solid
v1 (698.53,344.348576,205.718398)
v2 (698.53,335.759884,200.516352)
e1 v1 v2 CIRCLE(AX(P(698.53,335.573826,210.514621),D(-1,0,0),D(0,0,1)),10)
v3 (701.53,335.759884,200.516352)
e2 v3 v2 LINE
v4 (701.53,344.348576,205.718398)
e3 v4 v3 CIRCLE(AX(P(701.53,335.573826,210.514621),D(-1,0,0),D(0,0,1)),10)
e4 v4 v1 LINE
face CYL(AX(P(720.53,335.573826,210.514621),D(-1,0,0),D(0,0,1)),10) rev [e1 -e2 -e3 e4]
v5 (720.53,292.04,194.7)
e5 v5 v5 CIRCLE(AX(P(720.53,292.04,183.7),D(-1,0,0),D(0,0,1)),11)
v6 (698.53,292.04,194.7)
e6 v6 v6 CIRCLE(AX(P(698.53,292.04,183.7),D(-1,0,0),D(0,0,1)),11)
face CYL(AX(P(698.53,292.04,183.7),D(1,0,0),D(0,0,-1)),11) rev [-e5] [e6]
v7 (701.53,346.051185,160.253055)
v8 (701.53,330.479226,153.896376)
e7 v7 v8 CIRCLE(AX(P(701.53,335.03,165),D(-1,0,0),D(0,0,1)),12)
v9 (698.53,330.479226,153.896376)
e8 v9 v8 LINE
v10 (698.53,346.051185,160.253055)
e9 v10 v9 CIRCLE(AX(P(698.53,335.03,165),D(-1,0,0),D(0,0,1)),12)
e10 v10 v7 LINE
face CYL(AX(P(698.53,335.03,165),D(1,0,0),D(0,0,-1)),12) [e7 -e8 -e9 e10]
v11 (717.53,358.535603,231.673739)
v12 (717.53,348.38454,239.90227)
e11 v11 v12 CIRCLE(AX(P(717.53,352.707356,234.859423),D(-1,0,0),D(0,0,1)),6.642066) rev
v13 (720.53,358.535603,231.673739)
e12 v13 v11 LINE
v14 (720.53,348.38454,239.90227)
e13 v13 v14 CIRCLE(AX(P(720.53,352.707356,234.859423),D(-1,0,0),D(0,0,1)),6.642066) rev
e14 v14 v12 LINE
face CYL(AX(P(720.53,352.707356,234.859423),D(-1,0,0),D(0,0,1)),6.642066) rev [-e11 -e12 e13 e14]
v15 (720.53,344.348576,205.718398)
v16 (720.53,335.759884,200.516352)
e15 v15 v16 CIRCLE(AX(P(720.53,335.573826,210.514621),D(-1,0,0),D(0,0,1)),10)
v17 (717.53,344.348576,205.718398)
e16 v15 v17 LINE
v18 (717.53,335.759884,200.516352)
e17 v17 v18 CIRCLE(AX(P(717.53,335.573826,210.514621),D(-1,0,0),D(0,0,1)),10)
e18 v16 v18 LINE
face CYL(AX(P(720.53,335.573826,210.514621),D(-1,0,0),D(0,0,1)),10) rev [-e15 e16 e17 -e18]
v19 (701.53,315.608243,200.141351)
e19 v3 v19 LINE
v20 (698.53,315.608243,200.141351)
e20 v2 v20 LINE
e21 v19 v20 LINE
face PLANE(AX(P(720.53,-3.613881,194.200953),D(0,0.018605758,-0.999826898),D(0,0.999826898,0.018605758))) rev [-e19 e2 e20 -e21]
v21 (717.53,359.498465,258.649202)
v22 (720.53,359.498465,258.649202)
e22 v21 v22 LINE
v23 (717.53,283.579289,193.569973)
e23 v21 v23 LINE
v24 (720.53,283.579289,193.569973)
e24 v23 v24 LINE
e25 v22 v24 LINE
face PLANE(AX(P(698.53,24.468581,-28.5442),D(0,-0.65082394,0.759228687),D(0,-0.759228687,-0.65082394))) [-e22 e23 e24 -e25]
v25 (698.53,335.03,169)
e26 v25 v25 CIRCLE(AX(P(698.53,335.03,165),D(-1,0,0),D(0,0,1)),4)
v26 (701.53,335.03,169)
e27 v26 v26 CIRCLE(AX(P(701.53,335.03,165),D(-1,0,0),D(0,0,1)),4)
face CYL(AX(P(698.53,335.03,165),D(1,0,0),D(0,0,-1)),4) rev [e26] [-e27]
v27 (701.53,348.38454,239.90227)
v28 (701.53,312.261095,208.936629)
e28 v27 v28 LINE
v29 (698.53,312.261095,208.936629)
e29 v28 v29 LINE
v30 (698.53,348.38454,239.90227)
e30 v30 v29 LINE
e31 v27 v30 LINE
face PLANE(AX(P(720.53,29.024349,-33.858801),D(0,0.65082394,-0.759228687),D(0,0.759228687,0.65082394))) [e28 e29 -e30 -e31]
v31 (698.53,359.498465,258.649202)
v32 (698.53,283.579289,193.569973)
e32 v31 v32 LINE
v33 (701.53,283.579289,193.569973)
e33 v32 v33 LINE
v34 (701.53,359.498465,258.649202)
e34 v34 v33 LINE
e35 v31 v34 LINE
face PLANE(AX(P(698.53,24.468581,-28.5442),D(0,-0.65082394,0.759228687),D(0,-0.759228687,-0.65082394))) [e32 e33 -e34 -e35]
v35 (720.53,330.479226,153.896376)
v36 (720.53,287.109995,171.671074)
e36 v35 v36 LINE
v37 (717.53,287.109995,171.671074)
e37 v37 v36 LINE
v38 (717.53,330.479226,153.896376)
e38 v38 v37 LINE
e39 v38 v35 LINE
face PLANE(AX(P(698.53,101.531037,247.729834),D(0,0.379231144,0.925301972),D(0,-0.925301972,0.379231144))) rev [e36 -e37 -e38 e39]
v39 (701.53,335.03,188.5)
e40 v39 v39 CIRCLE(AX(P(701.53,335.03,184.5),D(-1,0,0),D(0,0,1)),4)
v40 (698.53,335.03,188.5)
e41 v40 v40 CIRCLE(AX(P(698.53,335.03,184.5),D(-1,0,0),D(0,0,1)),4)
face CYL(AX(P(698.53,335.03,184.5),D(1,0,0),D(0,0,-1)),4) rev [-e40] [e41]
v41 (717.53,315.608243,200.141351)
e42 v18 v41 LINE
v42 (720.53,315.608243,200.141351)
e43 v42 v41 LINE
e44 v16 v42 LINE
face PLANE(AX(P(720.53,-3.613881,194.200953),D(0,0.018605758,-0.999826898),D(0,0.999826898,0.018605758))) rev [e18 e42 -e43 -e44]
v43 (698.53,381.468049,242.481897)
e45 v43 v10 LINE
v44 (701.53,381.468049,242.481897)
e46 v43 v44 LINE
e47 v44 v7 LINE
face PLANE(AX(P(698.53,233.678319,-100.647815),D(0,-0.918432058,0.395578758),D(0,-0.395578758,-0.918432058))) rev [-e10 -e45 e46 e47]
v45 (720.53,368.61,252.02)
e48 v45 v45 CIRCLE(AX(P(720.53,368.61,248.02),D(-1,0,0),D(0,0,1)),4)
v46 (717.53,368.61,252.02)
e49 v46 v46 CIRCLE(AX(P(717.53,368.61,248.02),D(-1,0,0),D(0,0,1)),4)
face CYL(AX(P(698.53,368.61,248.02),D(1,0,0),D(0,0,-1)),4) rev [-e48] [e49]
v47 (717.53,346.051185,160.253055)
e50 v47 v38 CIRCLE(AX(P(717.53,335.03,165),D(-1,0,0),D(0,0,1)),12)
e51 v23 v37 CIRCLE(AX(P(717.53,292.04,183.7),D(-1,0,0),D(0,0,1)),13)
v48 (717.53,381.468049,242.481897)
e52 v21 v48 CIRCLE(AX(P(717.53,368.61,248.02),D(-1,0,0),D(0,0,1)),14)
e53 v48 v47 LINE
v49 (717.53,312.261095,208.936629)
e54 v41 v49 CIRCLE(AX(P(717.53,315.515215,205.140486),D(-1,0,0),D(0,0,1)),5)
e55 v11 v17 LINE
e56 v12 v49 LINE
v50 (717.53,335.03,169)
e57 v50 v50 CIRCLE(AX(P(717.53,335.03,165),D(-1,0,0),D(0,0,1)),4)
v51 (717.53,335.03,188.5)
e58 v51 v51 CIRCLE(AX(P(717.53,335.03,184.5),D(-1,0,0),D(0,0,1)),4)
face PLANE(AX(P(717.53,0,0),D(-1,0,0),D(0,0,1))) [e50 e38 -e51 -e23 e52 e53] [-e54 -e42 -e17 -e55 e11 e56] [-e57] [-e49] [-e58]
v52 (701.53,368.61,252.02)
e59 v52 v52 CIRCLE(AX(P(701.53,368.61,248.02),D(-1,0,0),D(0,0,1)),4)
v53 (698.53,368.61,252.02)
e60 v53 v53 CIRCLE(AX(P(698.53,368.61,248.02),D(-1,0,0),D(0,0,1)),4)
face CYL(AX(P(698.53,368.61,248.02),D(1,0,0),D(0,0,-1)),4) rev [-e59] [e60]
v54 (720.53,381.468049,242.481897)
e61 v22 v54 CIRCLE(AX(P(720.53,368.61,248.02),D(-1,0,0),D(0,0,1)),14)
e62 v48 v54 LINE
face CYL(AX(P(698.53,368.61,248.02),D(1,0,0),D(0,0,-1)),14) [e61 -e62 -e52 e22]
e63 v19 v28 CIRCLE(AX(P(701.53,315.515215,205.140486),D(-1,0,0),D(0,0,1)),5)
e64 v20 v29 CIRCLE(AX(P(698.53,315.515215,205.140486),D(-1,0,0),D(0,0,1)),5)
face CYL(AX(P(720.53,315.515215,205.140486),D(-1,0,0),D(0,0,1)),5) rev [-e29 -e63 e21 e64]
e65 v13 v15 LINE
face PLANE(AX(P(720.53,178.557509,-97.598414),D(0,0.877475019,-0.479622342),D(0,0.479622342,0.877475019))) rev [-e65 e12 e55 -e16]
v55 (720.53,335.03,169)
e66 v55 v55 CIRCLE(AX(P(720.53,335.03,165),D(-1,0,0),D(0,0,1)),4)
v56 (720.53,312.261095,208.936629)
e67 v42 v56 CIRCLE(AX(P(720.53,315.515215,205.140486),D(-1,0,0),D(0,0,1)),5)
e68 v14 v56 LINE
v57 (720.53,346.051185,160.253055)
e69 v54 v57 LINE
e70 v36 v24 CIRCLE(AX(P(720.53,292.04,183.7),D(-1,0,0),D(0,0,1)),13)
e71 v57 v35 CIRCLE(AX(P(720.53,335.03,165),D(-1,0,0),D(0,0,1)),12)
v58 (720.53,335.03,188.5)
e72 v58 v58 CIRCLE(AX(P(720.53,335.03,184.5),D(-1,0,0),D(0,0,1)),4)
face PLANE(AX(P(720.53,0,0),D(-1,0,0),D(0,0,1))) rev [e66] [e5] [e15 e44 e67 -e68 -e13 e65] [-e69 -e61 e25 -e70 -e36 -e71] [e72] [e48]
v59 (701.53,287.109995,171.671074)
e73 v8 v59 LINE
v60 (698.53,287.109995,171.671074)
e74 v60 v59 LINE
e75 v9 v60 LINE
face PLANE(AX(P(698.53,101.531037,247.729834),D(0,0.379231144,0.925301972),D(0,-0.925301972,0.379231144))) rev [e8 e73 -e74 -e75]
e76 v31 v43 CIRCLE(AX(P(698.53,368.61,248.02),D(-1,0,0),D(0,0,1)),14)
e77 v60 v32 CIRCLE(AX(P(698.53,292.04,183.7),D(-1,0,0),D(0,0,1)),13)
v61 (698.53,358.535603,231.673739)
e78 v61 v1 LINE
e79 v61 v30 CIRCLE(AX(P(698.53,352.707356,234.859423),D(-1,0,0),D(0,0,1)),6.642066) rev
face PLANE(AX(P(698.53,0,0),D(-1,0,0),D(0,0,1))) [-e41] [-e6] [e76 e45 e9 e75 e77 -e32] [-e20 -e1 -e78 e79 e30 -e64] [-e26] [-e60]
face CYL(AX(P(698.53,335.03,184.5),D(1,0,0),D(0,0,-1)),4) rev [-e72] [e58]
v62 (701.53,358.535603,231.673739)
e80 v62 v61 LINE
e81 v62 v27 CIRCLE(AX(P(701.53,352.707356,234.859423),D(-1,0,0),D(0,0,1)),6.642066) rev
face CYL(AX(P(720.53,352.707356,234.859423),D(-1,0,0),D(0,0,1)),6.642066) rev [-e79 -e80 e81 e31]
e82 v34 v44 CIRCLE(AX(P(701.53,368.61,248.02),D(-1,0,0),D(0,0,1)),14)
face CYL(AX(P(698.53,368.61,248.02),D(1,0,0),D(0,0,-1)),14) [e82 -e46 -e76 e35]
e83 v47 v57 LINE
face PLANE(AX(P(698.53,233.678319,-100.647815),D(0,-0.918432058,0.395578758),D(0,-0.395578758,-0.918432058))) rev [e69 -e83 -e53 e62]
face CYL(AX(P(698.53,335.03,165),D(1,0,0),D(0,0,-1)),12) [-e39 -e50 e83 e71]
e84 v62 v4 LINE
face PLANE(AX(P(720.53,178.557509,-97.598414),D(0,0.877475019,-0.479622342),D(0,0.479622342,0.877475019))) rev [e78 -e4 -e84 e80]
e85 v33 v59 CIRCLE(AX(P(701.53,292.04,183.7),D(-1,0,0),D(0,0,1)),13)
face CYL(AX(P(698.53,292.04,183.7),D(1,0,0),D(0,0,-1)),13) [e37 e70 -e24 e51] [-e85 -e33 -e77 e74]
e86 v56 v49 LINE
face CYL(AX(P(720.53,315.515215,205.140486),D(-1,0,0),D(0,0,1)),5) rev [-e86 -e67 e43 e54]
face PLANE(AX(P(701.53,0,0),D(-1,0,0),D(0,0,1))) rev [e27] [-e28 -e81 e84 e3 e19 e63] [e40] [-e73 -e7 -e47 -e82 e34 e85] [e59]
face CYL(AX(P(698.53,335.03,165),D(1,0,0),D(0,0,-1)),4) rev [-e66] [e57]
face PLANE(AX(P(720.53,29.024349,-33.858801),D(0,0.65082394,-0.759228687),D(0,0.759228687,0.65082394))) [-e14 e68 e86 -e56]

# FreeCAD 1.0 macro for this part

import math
import FreeCAD as App
import Part
import Sketcher
from FreeCAD import Vector
Q = App.Units.Quantity

doc = App.newDocument("Part")
body = doc.addObject("PartDesign::Body", "Body")

sketch1 = body.newObject("Sketcher::SketchObject", "Sketch")
sketch1.AttachmentSupport = (doc.getObject("YZ_Plane"), [""])
sketch1.MapMode = "FlatFace"
sketch1.AttachmentOffset = App.Placement(Vector(0, 0, 709.53), App.Rotation())
sketch1.addGeometry(Part.LineSegment(Vector(283.579289, 193.569973, 0), Vector(359.498465, 258.649202, 0)), False)
sketch1.addGeometry(Part.ArcOfCircle(Part.Circle(Vector(368.61, 248.02, 0), Vector(0, 0, 1), 14), math.radians(-28.660739), math.radians(130.603752)), False)
sketch1.addGeometry(Part.LineSegment(Vector(380.89465, 241.305287, 0), Vector(346.437175, 178.26491, 0)), False)
sketch1.addGeometry(Part.ArcOfCircle(Part.Circle(Vector(335.03, 184.5, 0), Vector(0, 0, 1), 13), math.radians(-88.933907), math.radians(-28.660739)), False)
sketch1.addGeometry(Part.LineSegment(Vector(335.271875, 171.50225, 0), Vector(292.281875, 170.70225, 0)), False)
sketch1.addGeometry(Part.ArcOfCircle(Part.Circle(Vector(292.04, 183.7, 0), Vector(0, 0, 1), 13), math.radians(130.603752), math.radians(271.066093)), False)
sketch1.addGeometry(Part.Circle(Vector(292.04, 183.7, 0), Vector(0, 0, 1), 11), False)
sketch1.addGeometry(Part.Circle(Vector(335.03, 184.5, 0), Vector(0, 0, 1), 4), False)
sketch1.addGeometry(Part.Circle(Vector(368.61, 248.02, 0), Vector(0, 0, 1), 4), False)
sketch1.addConstraint(Sketcher.Constraint("Tangent", 0, 2, 1, 2))
sketch1.addConstraint(Sketcher.Constraint("Tangent", 1, 1, 2, 1))
sketch1.addConstraint(Sketcher.Constraint("Tangent", 2, 2, 3, 2))
sketch1.addConstraint(Sketcher.Constraint("Tangent", 3, 1, 4, 1))
sketch1.addConstraint(Sketcher.Constraint("Tangent", 4, 2, 5, 2))
sketch1.addConstraint(Sketcher.Constraint("Tangent", 5, 1, 0, 1))
sketch1.addConstraint(Sketcher.Constraint("Coincident", 6, 3, 5, 3))
sketch1.addConstraint(Sketcher.Constraint("Coincident", 7, 3, 3, 3))
sketch1.addConstraint(Sketcher.Constraint("Coincident", 8, 3, 1, 3))
sketch1.addConstraint(Sketcher.Constraint("Equal", 3, 5))
sketch1.addConstraint(Sketcher.Constraint("Equal", 7, 8))
sketch1.addConstraint(Sketcher.Constraint("Diameter", 6, Q("22 mm")))
sketch1.addConstraint(Sketcher.Constraint("Diameter", 7, Q("8 mm")))
sketch1.addConstraint(Sketcher.Constraint("Radius", 1, Q("14 mm")))
sketch1.addConstraint(Sketcher.Constraint("Radius", 3, Q("13 mm")))
sketch1.addConstraint(Sketcher.Constraint("DistanceY", -1, 1, 3, 3, Q("184.5 mm")))
sketch1.addConstraint(Sketcher.Constraint("DistanceY", -1, 1, 5, 3, Q("183.7 mm")))
sketch1.addConstraint(Sketcher.Constraint("DistanceX", -1, 1, 1, 3, Q("368.61 mm")))
sketch1.addConstraint(Sketcher.Constraint("DistanceY", -1, 1, 1, 3, Q("248.02 mm")))
sketch1.addConstraint(Sketcher.Constraint("DistanceX", -1, 1, 3, 3, Q("335.03 mm")))
sketch1.addConstraint(Sketcher.Constraint("DistanceX", -1, 1, 5, 3, Q("292.04 mm")))
pad1 = body.newObject("PartDesign::Pad", "Pad")
pad1.Profile = sketch1
pad1.Length = 22
pad1.Midplane = True

sketch2 = body.newObject("Sketcher::SketchObject", "Sketch001")
sketch2.AttachmentSupport = (doc.getObject("YZ_Plane"), [""])
sketch2.MapMode = "FlatFace"
sketch2.AttachmentOffset = App.Placement(Vector(0, 0, 709.53), App.Rotation())
sketch2.addGeometry(Part.LineSegment(Vector(283.579289, 193.569973, 0), Vector(359.498465, 258.649202, 0)), False)
sketch2.addGeometry(Part.ArcOfCircle(Part.Circle(Vector(368.61, 248.02, 0), Vector(0, 0, 1), 14), math.radians(-28.660739), math.radians(130.603752)), False)
sketch2.addGeometry(Part.LineSegment(Vector(380.89465, 241.305287, 0), Vector(346.437175, 178.26491, 0)), False)
sketch2.addGeometry(Part.ArcOfCircle(Part.Circle(Vector(335.03, 184.5, 0), Vector(0, 0, 1), 13), math.radians(-88.933907), math.radians(-28.660739)), False)
sketch2.addGeometry(Part.LineSegment(Vector(335.271875, 171.50225, 0), Vector(292.281875, 170.70225, 0)), False)
sketch2.addGeometry(Part.ArcOfCircle(Part.Circle(Vector(292.04, 183.7, 0), Vector(0, 0, 1), 13), math.radians(-88.933907), math.radians(130.603752)), False)
sketch2.addGeometry(Part.Circle(Vector(335.03, 184.5, 0), Vector(0, 0, 1), 4), False)
sketch2.addGeometry(Part.Circle(Vector(368.61, 248.02, 0), Vector(0, 0, 1), 4), False)
sketch2.addConstraint(Sketcher.Constraint("Tangent", 0, 2, 1, 2))
sketch2.addConstraint(Sketcher.Constraint("Tangent", 1, 1, 2, 1))
sketch2.addConstraint(Sketcher.Constraint("Tangent", 2, 2, 3, 2))
sketch2.addConstraint(Sketcher.Constraint("Tangent", 3, 1, 4, 1))
sketch2.addConstraint(Sketcher.Constraint("Tangent", 4, 2, 5, 1))
sketch2.addConstraint(Sketcher.Constraint("Tangent", 5, 2, 0, 1))
sketch2.addConstraint(Sketcher.Constraint("Coincident", 6, 3, 3, 3))
sketch2.addConstraint(Sketcher.Constraint("Coincident", 7, 3, 1, 3))
sketch2.addConstraint(Sketcher.Constraint("Equal", 3, 5))
sketch2.addConstraint(Sketcher.Constraint("Equal", 6, 7))
sketch2.addConstraint(Sketcher.Constraint("Diameter", 6, Q("8 mm")))
sketch2.addConstraint(Sketcher.Constraint("Radius", 1, Q("14 mm")))
sketch2.addConstraint(Sketcher.Constraint("Radius", 3, Q("13 mm")))
sketch2.addConstraint(Sketcher.Constraint("DistanceY", -1, 1, 3, 3, Q("184.5 mm")))
sketch2.addConstraint(Sketcher.Constraint("DistanceY", -1, 1, 5, 3, Q("183.7 mm")))
sketch2.addConstraint(Sketcher.Constraint("DistanceX", -1, 1, 1, 3, Q("368.61 mm")))
sketch2.addConstraint(Sketcher.Constraint("DistanceY", -1, 1, 1, 3, Q("248.02 mm")))
sketch2.addConstraint(Sketcher.Constraint("DistanceX", -1, 1, 3, 3, Q("335.03 mm")))
sketch2.addConstraint(Sketcher.Constraint("DistanceX", -1, 1, 5, 3, Q("292.04 mm")))
pocket1 = body.newObject("PartDesign::Pocket", "Pocket")
pocket1.Profile = sketch2
pocket1.Length = 16
pocket1.Midplane = True

sketch3 = body.newObject("Sketcher::SketchObject", "Sketch002")
sketch3.AttachmentSupport = (doc.getObject("YZ_Plane"), [""])
sketch3.MapMode = "FlatFace"
sketch3.AttachmentOffset = App.Placement(Vector(0, 0, 698.53), App.Rotation())
sketch3.addGeometry(Part.LineSegment(Vector(358.535603, 231.673739, 0), Vector(344.348576, 205.718398, 0)), False)
sketch3.addGeometry(Part.ArcOfCircle(Part.Circle(Vector(335.573826, 210.514621, 0), Vector(0, 0, 1), 10), math.radians(-88.933907), math.radians(-28.660739)), False)
sketch3.addGeometry(Part.LineSegment(Vector(335.759884, 200.516353, 0), Vector(315.608243, 200.141351, 0)), False)
sketch3.addGeometry(Part.ArcOfCircle(Part.Circle(Vector(315.515215, 205.140486, 0), Vector(0, 0, 1), 5), math.radians(130.603752), math.radians(271.066093)), False)
sketch3.addGeometry(Part.LineSegment(Vector(312.261095, 208.936629, 0), Vector(348.38454, 239.90227, 0)), False)
sketch3.addGeometry(Part.ArcOfCircle(Part.Circle(Vector(352.707356, 234.859423, 0), Vector(0, 0, 1), 6.642066), math.radians(-28.660739), math.radians(130.603752)), False)
sketch3.addConstraint(Sketcher.Constraint("Tangent", 0, 2, 1, 2))
sketch3.addConstraint(Sketcher.Constraint("Tangent", 1, 1, 2, 1))
sketch3.addConstraint(Sketcher.Constraint("Tangent", 2, 2, 3, 2))
sketch3.addConstraint(Sketcher.Constraint("Tangent", 3, 1, 4, 1))
sketch3.addConstraint(Sketcher.Constraint("Tangent", 4, 2, 5, 2))
sketch3.addConstraint(Sketcher.Constraint("Tangent", 5, 1, 0, 1))
sketch3.addConstraint(Sketcher.Constraint("Radius", 1, Q("10 mm")))
sketch3.addConstraint(Sketcher.Constraint("Radius", 3, Q("5 mm")))
sketch3.addConstraint(Sketcher.Constraint("Radius", 5, Q("6.642066 mm")))
sketch3.addConstraint(Sketcher.Constraint("DistanceY", 2, 2, 1, 1, Q("0.375001 mm")))
sketch3.addConstraint(Sketcher.Constraint("DistanceY", -1, 1, 0, 2, Q("205.718398 mm")))
sketch3.addConstraint(Sketcher.Constraint("DistanceY", 1, 3, 5, 3, Q("24.344801 mm")))
sketch3.addConstraint(Sketcher.Constraint("Distance", 0, Q("29.579578 mm")))
sketch3.addConstraint(Sketcher.Constraint("Distance", 2, Q("20.155129 mm")))
sketch3.addConstraint(Sketcher.Constraint("DistanceX", -1, 1, 4, 2, Q("348.38454 mm")))
pocket2 = body.newObject("PartDesign::Pocket", "Pocket001")
pocket2.Profile = sketch3
pocket2.Type = "ThroughAll"
pocket2.Midplane = True

sketch4 = body.newObject("Sketcher::SketchObject", "Sketch003")
sketch4.AttachmentSupport = (doc.getObject("YZ_Plane"), [""])
sketch4.MapMode = "FlatFace"
sketch4.AttachmentOffset = App.Placement(Vector(0, 0, 709.53), App.Rotation())
sketch4.addGeometry(Part.ArcOfCircle(Part.Circle(Vector(335.03, 165, 0), Vector(0, 0, 1), 12), math.radians(-112.286066), math.radians(-23.302075)), False)
sketch4.addGeometry(Part.LineSegment(Vector(330.479226, 153.896376, 0), Vector(287.109995, 171.671074, 0)), False)
sketch4.addGeometry(Part.ArcOfCircle(Part.Circle(Vector(292.04, 183.7, 0), Vector(0, 0, 1), 13), math.radians(-112.286066), math.radians(-88.933907)), False)
sketch4.addGeometry(Part.LineSegment(Vector(292.281875, 170.70225, 0), Vector(335.271875, 171.50225, 0)), False)
sketch4.addGeometry(Part.ArcOfCircle(Part.Circle(Vector(335.03, 184.5, 0), Vector(0, 0, 1), 13), math.radians(-88.933907), math.radians(-28.660739)), False)
sketch4.addGeometry(Part.LineSegment(Vector(346.437175, 178.26491, 0), Vector(380.89465, 241.305287, 0)), False)
sketch4.addGeometry(Part.ArcOfCircle(Part.Circle(Vector(368.61, 248.02, 0), Vector(0, 0, 1), 14), math.radians(-28.660739), math.radians(-23.302075)), False)
sketch4.addGeometry(Part.LineSegment(Vector(381.468049, 242.481897, 0), Vector(346.051185, 160.253055, 0)), False)
sketch4.addGeometry(Part.Circle(Vector(335.03, 165, 0), Vector(0, 0, 1), 4), False)
sketch4.addConstraint(Sketcher.Constraint("Tangent", 0, 1, 1, 1))
sketch4.addConstraint(Sketcher.Constraint("Tangent", 1, 2, 2, 1))
sketch4.addConstraint(Sketcher.Constraint("Tangent", 2, 2, 3, 1))
sketch4.addConstraint(Sketcher.Constraint("Tangent", 3, 2, 4, 1))
sketch4.addConstraint(Sketcher.Constraint("Tangent", 4, 2, 5, 1))
sketch4.addConstraint(Sketcher.Constraint("Tangent", 5, 2, 6, 1))
sketch4.addConstraint(Sketcher.Constraint("Tangent", 6, 2, 7, 1))
sketch4.addConstraint(Sketcher.Constraint("Tangent", 7, 2, 0, 2))
sketch4.addConstraint(Sketcher.Constraint("Coincident", 8, 3, 0, 3))
sketch4.addConstraint(Sketcher.Constraint("Equal", 2, 4))
sketch4.addConstraint(Sketcher.Constraint("Vertical", 0, 3, 4, 3))
sketch4.addConstraint(Sketcher.Constraint("Diameter", 8, Q("8 mm")))
sketch4.addConstraint(Sketcher.Constraint("Radius", 0, Q("12 mm")))
sketch4.addConstraint(Sketcher.Constraint("Radius", 2, Q("13 mm")))
sketch4.addConstraint(Sketcher.Constraint("Radius", 6, Q("14 mm")))
sketch4.addConstraint(Sketcher.Constraint("DistanceY", -1, 1, 0, 3, Q("165 mm")))
sketch4.addConstraint(Sketcher.Constraint("DistanceY", -1, 1, 2, 3, Q("183.7 mm")))
sketch4.addConstraint(Sketcher.Constraint("DistanceY", -1, 1, 4, 3, Q("184.5 mm")))
sketch4.addConstraint(Sketcher.Constraint("DistanceX", -1, 1, 0, 3, Q("335.03 mm")))
sketch4.addConstraint(Sketcher.Constraint("DistanceX", -1, 1, 2, 3, Q("292.04 mm")))
sketch4.addConstraint(Sketcher.Constraint("DistanceX", -1, 1, 6, 3, Q("368.61 mm")))
sketch4.addConstraint(Sketcher.Constraint("DistanceY", -1, 1, 6, 3, Q("248.02 mm")))
pad2 = body.newObject("PartDesign::Pad", "Pad001")
pad2.Profile = sketch4
pad2.Length = 22
pad2.Midplane = True

sketch5 = body.newObject("Sketcher::SketchObject", "Sketch004")
sketch5.AttachmentSupport = (doc.getObject("YZ_Plane"), [""])
sketch5.MapMode = "FlatFace"
sketch5.AttachmentOffset = App.Placement(Vector(0, 0, 709.53), App.Rotation())
sketch5.addGeometry(Part.ArcOfCircle(Part.Circle(Vector(335.03, 165, 0), Vector(0, 0, 1), 12), math.radians(-112.286066), math.radians(-23.302075)), False)
sketch5.addGeometry(Part.LineSegment(Vector(330.479226, 153.896376, 0), Vector(287.109995, 171.671074, 0)), False)
sketch5.addGeometry(Part.ArcOfCircle(Part.Circle(Vector(292.04, 183.7, 0), Vector(0, 0, 1), 13), math.radians(-112.286066), math.radians(-88.933907)), False)
sketch5.addGeometry(Part.LineSegment(Vector(292.281875, 170.70225, 0), Vector(335.271875, 171.50225, 0)), False)
sketch5.addGeometry(Part.ArcOfCircle(Part.Circle(Vector(335.03, 184.5, 0), Vector(0, 0, 1), 13), math.radians(-88.933907), math.radians(-28.660739)), False)
sketch5.addGeometry(Part.LineSegment(Vector(346.437175, 178.26491, 0), Vector(380.89465, 241.305287, 0)), False)
sketch5.addGeometry(Part.ArcOfCircle(Part.Circle(Vector(368.61, 248.02, 0), Vector(0, 0, 1), 14), math.radians(-28.660739), math.radians(-23.302075)), False)
sketch5.addGeometry(Part.LineSegment(Vector(381.468049, 242.481897, 0), Vector(346.051185, 160.253055, 0)), False)
sketch5.addGeometry(Part.Circle(Vector(335.03, 165, 0), Vector(0, 0, 1), 4), False)
sketch5.addConstraint(Sketcher.Constraint("Tangent", 0, 1, 1, 1))
sketch5.addConstraint(Sketcher.Constraint("Tangent", 1, 2, 2, 1))
sketch5.addConstraint(Sketcher.Constraint("Tangent", 2, 2, 3, 1))
sketch5.addConstraint(Sketcher.Constraint("Tangent", 3, 2, 4, 1))
sketch5.addConstraint(Sketcher.Constraint("Tangent", 4, 2, 5, 1))
sketch5.addConstraint(Sketcher.Constraint("Tangent", 5, 2, 6, 1))
sketch5.addConstraint(Sketcher.Constraint("Tangent", 6, 2, 7, 1))
sketch5.addConstraint(Sketcher.Constraint("Tangent", 7, 2, 0, 2))
sketch5.addConstraint(Sketcher.Constraint("Coincident", 8, 3, 0, 3))
sketch5.addConstraint(Sketcher.Constraint("Equal", 2, 4))
sketch5.addConstraint(Sketcher.Constraint("Vertical", 0, 3, 4, 3))
sketch5.addConstraint(Sketcher.Constraint("Diameter", 8, Q("8 mm")))
sketch5.addConstraint(Sketcher.Constraint("Radius", 0, Q("12 mm")))
sketch5.addConstraint(Sketcher.Constraint("Radius", 2, Q("13 mm")))
sketch5.addConstraint(Sketcher.Constraint("Radius", 6, Q("14 mm")))
sketch5.addConstraint(Sketcher.Constraint("DistanceY", -1, 1, 0, 3, Q("165 mm")))
sketch5.addConstraint(Sketcher.Constraint("DistanceY", -1, 1, 2, 3, Q("183.7 mm")))
sketch5.addConstraint(Sketcher.Constraint("DistanceY", -1, 1, 4, 3, Q("184.5 mm")))
sketch5.addConstraint(Sketcher.Constraint("DistanceX", -1, 1, 0, 3, Q("335.03 mm")))
sketch5.addConstraint(Sketcher.Constraint("DistanceX", -1, 1, 2, 3, Q("292.04 mm")))
sketch5.addConstraint(Sketcher.Constraint("DistanceX", -1, 1, 6, 3, Q("368.61 mm")))
sketch5.addConstraint(Sketcher.Constraint("DistanceY", -1, 1, 6, 3, Q("248.02 mm")))
pocket3 = body.newObject("PartDesign::Pocket", "Pocket002")
pocket3.Profile = sketch5
pocket3.Length = 16
pocket3.Midplane = True

doc.recompute()
